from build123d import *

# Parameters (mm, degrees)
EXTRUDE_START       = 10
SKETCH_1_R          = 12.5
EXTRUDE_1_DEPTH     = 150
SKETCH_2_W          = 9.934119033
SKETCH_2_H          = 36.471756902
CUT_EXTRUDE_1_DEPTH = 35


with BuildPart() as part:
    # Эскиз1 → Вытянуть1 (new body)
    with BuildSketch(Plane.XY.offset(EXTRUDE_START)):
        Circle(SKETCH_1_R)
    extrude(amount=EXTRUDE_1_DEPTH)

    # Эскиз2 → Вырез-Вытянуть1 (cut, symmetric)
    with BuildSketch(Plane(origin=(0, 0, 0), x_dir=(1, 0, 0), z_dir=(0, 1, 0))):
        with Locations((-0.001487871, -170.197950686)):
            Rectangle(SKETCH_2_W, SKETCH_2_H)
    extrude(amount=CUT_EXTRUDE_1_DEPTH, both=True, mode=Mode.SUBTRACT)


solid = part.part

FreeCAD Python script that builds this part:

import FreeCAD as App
import Part
import Sketcher
from FreeCAD import Vector

doc = App.newDocument("Part")
params = doc.addObject("Spreadsheet::Sheet", "Params")
for row, (alias, value) in enumerate([
    ("sketch1_diameter", "25 mm"),
    ("pad1_length", "150 mm"),
    ("pocket1_length", "70 mm"),
], start=1):
    params.set(f"A{row}", alias)
    params.set(f"B{row}", "=" + value)
    params.setAlias(f"B{row}", alias)

body = doc.addObject("PartDesign::Body", "Body")

# Sketch on XY plane
sketch1 = body.newObject("Sketcher::SketchObject", "Sketch")
sketch1.AttachmentSupport = (doc.getObject("XY_Plane"), [""])
sketch1.MapMode = "FlatFace"
sketch1.AttachmentOffset = App.Placement(Vector(0, 0, 10), App.Rotation())
sketch1.addGeometry(Part.Circle(Vector(0, 0, 0), Vector(0, 0, 1), 12), False)
sketch1.addConstraint([
    Sketcher.Constraint("Coincident", 0, 3, -1, 1),
    Sketcher.Constraint("Diameter", 0, 25.0),
])
sketch1.setExpression("Constraints[1]", "Params.sketch1_diameter")
pad1 = body.newObject("PartDesign::Pad", "Pad")
pad1.Profile = sketch1
pad1.setExpression("Length", "Params.pad1_length")

# Sketch on XZ plane
sketch2 = body.newObject("Sketcher::SketchObject", "Sketch001")
sketch2.AttachmentSupport = (doc.getObject("XZ_Plane"), [""])
sketch2.MapMode = "FlatFace"
sketch2.addGeometry([
    Part.LineSegment(Vector(-5, 152, 0), Vector(-5, 188, 0)),
    Part.LineSegment(Vector(-5, 188, 0), Vector(5, 188, 0)),
    Part.LineSegment(Vector(5, 188, 0), Vector(5, 152, 0)),
    Part.LineSegment(Vector(5, 152, 0), Vector(-5, 152, 0)),
], False)
sketch2.addConstraint([
    Sketcher.Constraint("Coincident", 0, 2, 1, 1),
    Sketcher.Constraint("Coincident", 1, 2, 2, 1),
    Sketcher.Constraint("Coincident", 2, 2, 3, 1),
    Sketcher.Constraint("Coincident", 3, 2, 0, 1),
    Sketcher.Constraint("Vertical", 0),
    Sketcher.Constraint("Horizontal", 1),
    Sketcher.Constraint("Vertical", 2),
    Sketcher.Constraint("Horizontal", 3),
    Sketcher.Constraint("DistanceX", 1, 1, 1, 2, 9.934119),
    Sketcher.Constraint("DistanceY", 0, 1, 0, 2, 36.471757),
    Sketcher.Constraint("DistanceY", -1, 1, 0, 2, 188.433829),
    Sketcher.Constraint("DistanceX", -1, 1, 1, 2, 4.965572),
])
pocket1 = body.newObject("PartDesign::Pocket", "Pocket")
pocket1.Profile = sketch2
pocket1.setExpression("Length", "Params.pocket1_length")
pocket1.Midplane = True

doc.recompute()
